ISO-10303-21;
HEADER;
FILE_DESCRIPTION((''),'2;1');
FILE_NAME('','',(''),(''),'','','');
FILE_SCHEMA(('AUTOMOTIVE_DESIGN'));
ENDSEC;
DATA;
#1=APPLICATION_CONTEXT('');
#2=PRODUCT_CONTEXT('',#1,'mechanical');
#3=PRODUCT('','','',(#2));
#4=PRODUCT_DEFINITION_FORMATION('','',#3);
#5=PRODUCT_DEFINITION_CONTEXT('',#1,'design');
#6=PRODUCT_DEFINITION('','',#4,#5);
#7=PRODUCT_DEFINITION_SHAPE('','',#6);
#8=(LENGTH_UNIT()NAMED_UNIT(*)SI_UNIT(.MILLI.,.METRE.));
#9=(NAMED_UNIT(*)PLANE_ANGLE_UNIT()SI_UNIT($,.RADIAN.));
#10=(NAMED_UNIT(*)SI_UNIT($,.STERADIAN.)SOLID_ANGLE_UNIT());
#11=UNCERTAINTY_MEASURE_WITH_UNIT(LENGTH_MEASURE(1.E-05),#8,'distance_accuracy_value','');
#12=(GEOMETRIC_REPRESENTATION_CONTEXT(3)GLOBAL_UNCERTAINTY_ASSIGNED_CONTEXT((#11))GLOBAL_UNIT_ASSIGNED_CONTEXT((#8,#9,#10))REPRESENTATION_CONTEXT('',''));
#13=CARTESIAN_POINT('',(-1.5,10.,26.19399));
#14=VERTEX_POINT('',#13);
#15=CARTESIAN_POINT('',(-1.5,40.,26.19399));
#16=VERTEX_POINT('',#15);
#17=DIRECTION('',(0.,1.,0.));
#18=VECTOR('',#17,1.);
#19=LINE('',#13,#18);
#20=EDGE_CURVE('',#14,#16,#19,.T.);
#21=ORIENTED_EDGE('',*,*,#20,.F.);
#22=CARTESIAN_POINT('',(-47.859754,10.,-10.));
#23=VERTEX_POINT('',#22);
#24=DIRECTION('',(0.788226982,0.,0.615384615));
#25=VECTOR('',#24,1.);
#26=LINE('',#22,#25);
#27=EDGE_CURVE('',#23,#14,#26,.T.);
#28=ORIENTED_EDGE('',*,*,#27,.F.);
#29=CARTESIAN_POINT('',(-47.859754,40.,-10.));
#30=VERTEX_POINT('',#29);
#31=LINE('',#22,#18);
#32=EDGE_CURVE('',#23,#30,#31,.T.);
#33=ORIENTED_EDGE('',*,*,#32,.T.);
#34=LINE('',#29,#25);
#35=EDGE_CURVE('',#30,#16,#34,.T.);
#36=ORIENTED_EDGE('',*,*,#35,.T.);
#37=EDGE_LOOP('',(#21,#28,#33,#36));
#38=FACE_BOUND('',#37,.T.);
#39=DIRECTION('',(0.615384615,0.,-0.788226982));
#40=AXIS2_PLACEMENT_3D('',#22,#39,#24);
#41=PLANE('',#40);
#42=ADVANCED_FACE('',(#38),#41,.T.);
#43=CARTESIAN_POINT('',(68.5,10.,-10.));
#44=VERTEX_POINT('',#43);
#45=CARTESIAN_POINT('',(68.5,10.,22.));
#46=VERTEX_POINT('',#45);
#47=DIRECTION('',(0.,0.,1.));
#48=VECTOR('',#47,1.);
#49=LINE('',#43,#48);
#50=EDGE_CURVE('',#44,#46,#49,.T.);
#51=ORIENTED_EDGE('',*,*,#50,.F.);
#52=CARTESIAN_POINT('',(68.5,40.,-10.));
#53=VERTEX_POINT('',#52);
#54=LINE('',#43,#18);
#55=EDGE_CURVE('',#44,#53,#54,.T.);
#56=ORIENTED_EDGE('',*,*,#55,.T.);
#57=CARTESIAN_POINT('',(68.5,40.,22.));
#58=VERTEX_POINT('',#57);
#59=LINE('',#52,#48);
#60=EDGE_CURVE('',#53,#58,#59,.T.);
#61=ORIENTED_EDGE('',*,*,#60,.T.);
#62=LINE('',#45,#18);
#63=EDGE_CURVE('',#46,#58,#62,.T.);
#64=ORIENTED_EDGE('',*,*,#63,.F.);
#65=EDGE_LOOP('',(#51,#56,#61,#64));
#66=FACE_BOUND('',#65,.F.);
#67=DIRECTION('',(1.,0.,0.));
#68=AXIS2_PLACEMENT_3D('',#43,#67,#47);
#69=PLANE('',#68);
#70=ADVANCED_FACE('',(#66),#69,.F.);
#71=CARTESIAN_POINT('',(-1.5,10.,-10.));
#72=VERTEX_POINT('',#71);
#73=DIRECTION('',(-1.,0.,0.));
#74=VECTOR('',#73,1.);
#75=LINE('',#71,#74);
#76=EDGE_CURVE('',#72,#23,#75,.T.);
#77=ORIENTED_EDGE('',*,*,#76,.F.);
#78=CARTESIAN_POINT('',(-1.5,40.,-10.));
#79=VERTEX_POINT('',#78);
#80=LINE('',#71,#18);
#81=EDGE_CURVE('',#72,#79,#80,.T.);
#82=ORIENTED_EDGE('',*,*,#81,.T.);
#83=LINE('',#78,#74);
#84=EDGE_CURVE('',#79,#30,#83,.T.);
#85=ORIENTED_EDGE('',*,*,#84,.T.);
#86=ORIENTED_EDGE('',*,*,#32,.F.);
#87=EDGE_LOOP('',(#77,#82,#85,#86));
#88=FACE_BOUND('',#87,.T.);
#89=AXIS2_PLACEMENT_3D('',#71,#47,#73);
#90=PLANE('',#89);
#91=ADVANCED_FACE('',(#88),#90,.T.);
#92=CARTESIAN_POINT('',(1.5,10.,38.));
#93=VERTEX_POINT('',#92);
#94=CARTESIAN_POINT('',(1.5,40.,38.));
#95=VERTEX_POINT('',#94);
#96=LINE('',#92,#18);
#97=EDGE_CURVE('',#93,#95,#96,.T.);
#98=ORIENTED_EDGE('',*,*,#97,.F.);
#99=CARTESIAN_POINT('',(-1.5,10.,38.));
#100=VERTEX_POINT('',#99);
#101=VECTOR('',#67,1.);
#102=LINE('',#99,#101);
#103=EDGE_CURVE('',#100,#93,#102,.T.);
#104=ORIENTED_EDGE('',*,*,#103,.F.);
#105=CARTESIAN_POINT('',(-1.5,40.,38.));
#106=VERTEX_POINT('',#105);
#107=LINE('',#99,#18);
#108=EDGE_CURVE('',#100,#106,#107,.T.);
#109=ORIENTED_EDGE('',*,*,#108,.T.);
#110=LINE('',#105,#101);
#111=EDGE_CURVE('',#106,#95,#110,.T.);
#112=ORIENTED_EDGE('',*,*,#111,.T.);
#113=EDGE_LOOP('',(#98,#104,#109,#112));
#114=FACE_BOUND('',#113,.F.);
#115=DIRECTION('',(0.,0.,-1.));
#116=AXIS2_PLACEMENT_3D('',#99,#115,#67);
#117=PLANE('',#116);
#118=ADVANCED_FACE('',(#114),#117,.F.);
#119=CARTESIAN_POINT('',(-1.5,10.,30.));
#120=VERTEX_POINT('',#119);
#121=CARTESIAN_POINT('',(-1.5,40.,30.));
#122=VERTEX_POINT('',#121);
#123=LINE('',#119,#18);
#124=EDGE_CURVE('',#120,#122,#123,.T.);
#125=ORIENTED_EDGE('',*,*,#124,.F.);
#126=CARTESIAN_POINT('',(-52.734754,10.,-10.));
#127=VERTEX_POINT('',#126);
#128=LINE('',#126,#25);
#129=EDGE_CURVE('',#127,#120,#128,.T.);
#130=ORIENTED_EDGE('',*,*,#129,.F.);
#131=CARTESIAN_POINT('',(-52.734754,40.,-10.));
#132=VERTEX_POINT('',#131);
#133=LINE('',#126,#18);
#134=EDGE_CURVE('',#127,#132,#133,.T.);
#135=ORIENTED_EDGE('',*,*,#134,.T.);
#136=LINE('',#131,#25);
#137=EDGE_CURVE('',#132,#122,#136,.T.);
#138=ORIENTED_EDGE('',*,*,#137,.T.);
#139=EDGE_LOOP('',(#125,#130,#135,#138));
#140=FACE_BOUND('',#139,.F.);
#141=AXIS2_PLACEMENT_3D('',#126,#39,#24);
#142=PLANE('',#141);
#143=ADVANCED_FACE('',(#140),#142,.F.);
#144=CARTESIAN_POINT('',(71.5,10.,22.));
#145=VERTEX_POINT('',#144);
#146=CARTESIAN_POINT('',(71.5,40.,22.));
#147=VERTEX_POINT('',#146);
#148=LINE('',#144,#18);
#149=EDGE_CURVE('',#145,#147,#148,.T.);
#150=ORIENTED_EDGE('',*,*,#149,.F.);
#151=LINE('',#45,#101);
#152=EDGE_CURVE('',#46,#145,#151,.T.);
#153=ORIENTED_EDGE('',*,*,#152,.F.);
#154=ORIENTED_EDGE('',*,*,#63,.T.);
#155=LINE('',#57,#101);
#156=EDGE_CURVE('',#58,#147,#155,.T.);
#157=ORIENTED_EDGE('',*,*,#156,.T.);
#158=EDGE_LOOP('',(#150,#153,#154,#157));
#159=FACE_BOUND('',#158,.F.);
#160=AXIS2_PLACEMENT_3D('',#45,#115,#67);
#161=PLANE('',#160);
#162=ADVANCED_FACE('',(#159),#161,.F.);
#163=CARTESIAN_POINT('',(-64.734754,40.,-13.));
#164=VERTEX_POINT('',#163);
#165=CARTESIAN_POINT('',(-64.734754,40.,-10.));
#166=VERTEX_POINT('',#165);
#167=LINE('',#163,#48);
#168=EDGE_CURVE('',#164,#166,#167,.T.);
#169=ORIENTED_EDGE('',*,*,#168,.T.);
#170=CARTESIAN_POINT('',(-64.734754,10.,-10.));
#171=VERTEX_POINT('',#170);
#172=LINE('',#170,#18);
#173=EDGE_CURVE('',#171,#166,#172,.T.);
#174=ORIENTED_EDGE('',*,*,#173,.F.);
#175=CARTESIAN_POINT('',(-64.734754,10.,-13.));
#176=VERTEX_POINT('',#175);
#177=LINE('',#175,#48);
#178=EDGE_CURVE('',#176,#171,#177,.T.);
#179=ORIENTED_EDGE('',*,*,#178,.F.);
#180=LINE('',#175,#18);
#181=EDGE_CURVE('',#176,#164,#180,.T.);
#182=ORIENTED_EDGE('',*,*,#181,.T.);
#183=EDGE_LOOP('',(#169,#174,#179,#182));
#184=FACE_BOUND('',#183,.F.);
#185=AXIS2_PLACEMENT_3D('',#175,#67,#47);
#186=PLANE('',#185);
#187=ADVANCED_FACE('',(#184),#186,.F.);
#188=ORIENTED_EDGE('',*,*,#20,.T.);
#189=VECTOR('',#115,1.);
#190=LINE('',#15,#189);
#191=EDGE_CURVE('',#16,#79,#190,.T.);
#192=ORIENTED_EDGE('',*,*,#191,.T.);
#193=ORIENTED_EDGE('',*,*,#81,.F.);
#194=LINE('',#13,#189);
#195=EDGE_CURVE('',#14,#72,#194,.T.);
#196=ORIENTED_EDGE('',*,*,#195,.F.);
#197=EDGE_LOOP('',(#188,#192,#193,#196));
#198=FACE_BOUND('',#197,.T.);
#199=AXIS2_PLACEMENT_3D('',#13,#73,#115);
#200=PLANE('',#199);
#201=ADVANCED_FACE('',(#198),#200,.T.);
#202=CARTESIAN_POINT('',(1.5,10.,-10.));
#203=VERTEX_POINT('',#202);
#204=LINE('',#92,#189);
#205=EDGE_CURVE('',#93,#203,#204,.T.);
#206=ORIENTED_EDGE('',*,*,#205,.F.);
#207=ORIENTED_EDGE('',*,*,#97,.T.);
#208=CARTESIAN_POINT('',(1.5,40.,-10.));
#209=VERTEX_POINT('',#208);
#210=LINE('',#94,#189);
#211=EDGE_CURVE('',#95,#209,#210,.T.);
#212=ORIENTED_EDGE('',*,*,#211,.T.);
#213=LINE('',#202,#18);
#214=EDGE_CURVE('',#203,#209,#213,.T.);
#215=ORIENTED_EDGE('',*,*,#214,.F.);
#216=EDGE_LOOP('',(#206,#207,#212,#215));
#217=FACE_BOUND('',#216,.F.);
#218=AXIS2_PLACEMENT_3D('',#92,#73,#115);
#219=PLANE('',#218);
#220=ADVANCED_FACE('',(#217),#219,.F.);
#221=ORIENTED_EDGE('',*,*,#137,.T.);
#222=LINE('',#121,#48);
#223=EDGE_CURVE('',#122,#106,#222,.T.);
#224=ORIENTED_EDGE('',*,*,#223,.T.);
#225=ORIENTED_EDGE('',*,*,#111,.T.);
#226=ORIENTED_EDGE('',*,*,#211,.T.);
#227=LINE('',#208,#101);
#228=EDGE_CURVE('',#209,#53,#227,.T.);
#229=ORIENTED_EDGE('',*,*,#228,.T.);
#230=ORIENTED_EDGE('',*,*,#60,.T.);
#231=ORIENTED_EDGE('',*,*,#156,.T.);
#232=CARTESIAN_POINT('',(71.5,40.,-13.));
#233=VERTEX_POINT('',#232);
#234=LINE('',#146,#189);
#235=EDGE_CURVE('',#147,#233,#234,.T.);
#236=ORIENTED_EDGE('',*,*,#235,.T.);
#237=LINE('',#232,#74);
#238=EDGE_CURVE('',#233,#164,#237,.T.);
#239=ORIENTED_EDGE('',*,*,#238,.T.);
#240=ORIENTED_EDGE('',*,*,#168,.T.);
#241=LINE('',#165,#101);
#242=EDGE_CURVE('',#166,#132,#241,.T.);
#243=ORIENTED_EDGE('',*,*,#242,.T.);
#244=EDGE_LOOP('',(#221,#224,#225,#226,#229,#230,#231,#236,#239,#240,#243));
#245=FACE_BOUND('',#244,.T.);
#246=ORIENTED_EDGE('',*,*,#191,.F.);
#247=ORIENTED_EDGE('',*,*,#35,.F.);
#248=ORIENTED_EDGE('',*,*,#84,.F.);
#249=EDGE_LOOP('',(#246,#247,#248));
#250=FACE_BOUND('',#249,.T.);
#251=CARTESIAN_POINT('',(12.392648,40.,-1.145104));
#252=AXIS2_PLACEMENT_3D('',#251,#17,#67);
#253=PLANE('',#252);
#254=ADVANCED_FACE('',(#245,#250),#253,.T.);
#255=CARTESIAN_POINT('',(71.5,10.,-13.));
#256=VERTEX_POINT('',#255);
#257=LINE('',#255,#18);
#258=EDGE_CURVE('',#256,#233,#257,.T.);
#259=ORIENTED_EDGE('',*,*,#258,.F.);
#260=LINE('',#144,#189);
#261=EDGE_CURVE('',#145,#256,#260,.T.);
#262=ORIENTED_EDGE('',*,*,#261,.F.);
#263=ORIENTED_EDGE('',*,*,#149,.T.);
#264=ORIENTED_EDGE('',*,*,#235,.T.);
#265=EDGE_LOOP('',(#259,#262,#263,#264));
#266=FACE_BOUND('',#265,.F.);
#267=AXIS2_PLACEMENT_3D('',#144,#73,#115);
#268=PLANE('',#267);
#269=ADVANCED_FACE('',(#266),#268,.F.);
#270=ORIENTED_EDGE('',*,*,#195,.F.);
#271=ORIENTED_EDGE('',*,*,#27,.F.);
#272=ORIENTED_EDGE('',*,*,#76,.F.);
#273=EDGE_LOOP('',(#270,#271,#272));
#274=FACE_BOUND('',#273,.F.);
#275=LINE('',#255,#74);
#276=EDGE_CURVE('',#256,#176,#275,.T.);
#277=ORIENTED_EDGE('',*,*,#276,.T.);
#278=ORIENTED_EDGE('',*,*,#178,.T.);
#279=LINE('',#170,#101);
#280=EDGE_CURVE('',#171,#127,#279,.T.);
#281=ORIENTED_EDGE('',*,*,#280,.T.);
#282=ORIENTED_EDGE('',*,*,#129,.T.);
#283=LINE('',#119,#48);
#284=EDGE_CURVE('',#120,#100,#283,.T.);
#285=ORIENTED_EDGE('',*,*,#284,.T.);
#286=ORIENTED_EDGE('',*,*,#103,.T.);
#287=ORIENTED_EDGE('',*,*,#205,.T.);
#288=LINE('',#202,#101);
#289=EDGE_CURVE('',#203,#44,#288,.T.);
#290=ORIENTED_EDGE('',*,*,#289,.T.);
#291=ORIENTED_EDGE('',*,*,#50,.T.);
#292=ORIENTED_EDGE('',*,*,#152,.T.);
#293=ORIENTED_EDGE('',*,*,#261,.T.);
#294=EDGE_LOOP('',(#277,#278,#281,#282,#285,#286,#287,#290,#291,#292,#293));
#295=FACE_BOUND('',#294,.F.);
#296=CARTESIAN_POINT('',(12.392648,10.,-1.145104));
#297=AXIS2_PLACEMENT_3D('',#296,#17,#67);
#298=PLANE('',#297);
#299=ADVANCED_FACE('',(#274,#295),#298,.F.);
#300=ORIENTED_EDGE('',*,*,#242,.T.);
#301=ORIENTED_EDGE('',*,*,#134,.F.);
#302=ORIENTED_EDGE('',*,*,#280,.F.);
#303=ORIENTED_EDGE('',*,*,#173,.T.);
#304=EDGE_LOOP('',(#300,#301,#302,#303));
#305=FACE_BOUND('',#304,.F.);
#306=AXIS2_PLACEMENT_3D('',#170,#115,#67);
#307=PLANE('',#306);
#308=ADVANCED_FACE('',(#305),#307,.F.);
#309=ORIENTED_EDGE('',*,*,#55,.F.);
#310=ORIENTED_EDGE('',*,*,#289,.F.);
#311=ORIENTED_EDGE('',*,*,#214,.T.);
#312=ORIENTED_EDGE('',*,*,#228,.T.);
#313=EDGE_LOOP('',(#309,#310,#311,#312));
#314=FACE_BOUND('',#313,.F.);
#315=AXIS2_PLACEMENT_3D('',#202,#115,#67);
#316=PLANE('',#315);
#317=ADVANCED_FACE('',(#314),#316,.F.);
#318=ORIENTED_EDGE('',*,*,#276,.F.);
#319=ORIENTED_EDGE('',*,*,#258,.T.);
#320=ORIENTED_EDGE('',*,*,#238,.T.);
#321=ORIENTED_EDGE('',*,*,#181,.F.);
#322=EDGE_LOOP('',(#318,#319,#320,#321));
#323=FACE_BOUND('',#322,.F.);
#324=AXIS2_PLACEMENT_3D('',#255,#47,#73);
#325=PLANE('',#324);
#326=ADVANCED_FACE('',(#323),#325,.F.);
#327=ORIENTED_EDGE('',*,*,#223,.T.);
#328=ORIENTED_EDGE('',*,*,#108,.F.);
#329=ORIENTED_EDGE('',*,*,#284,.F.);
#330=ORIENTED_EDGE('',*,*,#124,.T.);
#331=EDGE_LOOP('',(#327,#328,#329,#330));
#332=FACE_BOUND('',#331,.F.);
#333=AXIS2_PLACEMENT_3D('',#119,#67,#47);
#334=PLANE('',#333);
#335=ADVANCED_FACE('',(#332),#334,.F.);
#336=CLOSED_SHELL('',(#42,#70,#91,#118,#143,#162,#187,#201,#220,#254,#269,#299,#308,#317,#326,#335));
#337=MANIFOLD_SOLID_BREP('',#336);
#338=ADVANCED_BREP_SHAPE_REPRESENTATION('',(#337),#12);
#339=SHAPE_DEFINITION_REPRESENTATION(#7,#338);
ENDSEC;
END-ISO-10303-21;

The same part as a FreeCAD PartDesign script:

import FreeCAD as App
import Part
import Sketcher
from FreeCAD import Vector

doc = App.newDocument("Part")
body = doc.addObject("PartDesign::Body", "Body")

# Sketch on XZ plane
sketch1 = doc.addObject("Sketcher::SketchObject", "Sketch")
body.addObject(sketch1)
sketch1.AttachmentSupport = (doc.XZ_Plane, [""])
sketch1.MapMode = "FlatFace"
sketch1.AttachmentOffset = App.Placement(Vector(0, 0, -10), App.Rotation())
sketch1.addGeometry([
    Part.LineSegment(Vector(71.5, 22, 0), Vector(71.5, -13, 0)),  # 0
    Part.LineSegment(Vector(71.5, -13, 0), Vector(-64.7, -13, 0)),  # 1
    Part.LineSegment(Vector(-64.7, -13, 0), Vector(-64.7, -10, 0)),  # 2
    Part.LineSegment(Vector(-64.7, -10, 0), Vector(-52.7, -10, 0)),  # 3
    Part.LineSegment(Vector(-52.7, -10, 0), Vector(-1.5, 30, 0)),  # 4
    Part.LineSegment(Vector(-1.5, 30, 0), Vector(-1.5, 38, 0)),  # 5
    Part.LineSegment(Vector(-1.5, 38, 0), Vector(1.5, 38, 0)),  # 6
    Part.LineSegment(Vector(1.5, 38, 0), Vector(1.5, -10, 0)),  # 7
    Part.LineSegment(Vector(1.5, -10, 0), Vector(68.5, -10, 0)),  # 8
    Part.LineSegment(Vector(68.5, -10, 0), Vector(68.5, 22, 0)),  # 9
    Part.LineSegment(Vector(68.5, 22, 0), Vector(71.5, 22, 0)),  # 10
], False)
sketch1.addConstraint([
    Sketcher.Constraint("Coincident", 0, 2, 1, 1),
    Sketcher.Constraint("Coincident", 1, 2, 2, 1),
    Sketcher.Constraint("Coincident", 2, 2, 3, 1),
    Sketcher.Constraint("Coincident", 3, 2, 4, 1),
    Sketcher.Constraint("Coincident", 4, 2, 5, 1),
    Sketcher.Constraint("Coincident", 5, 2, 6, 1),
    Sketcher.Constraint("Coincident", 6, 2, 7, 1),
    Sketcher.Constraint("Coincident", 7, 2, 8, 1),
    Sketcher.Constraint("Coincident", 8, 2, 9, 1),
    Sketcher.Constraint("Coincident", 9, 2, 10, 1),
    Sketcher.Constraint("Coincident", 10, 2, 0, 1),
    Sketcher.Constraint("Vertical", 0),
    Sketcher.Constraint("Horizontal", 1),
    Sketcher.Constraint("Vertical", 2),
    Sketcher.Constraint("Horizontal", 3),
    Sketcher.Constraint("Vertical", 5),
    Sketcher.Constraint("Horizontal", 6),
    Sketcher.Constraint("Vertical", 7),
    Sketcher.Constraint("Horizontal", 8),
    Sketcher.Constraint("Vertical", 9),
    Sketcher.Constraint("Horizontal", 10),
    Sketcher.Constraint("Horizontal", 3, 2, 7, 2),
    Sketcher.Constraint("Equal", 6, 10),
    Sketcher.Constraint("Equal", 10, 2),
    Sketcher.Constraint("DistanceX", 3, 1, 3, 2, 12.0),
    Sketcher.Constraint("DistanceX", 6, 1, 6, 2, 3.0),
    Sketcher.Constraint("DistanceX", 8, 1, 8, 2, 67.0),
    Sketcher.Constraint("DistanceY", 0, 2, 0, 1, 35.0),
    Sketcher.Constraint("DistanceY", 5, 1, 5, 2, 8.0),
    Sketcher.Constraint("DistanceY", 7, 2, 7, 1, 48.0),
    Sketcher.Constraint("Distance", 4, 65.0),
    Sketcher.Constraint("DistanceY", 0, 2, -1, 1, 13.0),
    Sketcher.Constraint("DistanceX", -1, 1, 0, 2, 71.5),
])
pad1 = doc.addObject("PartDesign::Pad", "Pad")
body.addObject(pad1)
pad1.Profile = sketch1
pad1.Length = 30
pad1.Reversed = True

# Sketch on XZ plane
sketch2 = doc.addObject("Sketcher::SketchObject", "Sketch001")
body.addObject(sketch2)
sketch2.AttachmentSupport = (doc.XZ_Plane, [""])
sketch2.MapMode = "FlatFace"
sketch2.AttachmentOffset = App.Placement(Vector(0, 0, -10), App.Rotation())
sketch2.addGeometry([
    Part.LineSegment(Vector(-2, 26, 0), Vector(-48, -10, 0)),
    Part.LineSegment(Vector(-48, -10, 0), Vector(-2, -10, 0)),
    Part.LineSegment(Vector(-2, -10, 0), Vector(-2, 26, 0)),
], False)
sketch2.addConstraint([
    Sketcher.Constraint("Coincident", 0, 2, 1, 1),
    Sketcher.Constraint("Coincident", 1, 2, 2, 1),
    Sketcher.Constraint("Coincident", 2, 2, 0, 1),
    Sketcher.Constraint("Horizontal", 1),
    Sketcher.Constraint("Vertical", 2),
    Sketcher.Constraint("DistanceY", 0, 2, -1, 1, 10.0),
    Sketcher.Constraint("DistanceX", 1, 2, -1, 1, 1.5),
    Sketcher.Constraint("DistanceY", 2, 1, 2, 2, 36.19399),
    Sketcher.Constraint("DistanceX", 1, 1, 1, 2, 46.359754),
])
pocket1 = doc.addObject("PartDesign::Pocket", "Pocket")
body.addObject(pocket1)
pocket1.Profile = sketch2
pocket1.Length = 30

doc.recompute()
